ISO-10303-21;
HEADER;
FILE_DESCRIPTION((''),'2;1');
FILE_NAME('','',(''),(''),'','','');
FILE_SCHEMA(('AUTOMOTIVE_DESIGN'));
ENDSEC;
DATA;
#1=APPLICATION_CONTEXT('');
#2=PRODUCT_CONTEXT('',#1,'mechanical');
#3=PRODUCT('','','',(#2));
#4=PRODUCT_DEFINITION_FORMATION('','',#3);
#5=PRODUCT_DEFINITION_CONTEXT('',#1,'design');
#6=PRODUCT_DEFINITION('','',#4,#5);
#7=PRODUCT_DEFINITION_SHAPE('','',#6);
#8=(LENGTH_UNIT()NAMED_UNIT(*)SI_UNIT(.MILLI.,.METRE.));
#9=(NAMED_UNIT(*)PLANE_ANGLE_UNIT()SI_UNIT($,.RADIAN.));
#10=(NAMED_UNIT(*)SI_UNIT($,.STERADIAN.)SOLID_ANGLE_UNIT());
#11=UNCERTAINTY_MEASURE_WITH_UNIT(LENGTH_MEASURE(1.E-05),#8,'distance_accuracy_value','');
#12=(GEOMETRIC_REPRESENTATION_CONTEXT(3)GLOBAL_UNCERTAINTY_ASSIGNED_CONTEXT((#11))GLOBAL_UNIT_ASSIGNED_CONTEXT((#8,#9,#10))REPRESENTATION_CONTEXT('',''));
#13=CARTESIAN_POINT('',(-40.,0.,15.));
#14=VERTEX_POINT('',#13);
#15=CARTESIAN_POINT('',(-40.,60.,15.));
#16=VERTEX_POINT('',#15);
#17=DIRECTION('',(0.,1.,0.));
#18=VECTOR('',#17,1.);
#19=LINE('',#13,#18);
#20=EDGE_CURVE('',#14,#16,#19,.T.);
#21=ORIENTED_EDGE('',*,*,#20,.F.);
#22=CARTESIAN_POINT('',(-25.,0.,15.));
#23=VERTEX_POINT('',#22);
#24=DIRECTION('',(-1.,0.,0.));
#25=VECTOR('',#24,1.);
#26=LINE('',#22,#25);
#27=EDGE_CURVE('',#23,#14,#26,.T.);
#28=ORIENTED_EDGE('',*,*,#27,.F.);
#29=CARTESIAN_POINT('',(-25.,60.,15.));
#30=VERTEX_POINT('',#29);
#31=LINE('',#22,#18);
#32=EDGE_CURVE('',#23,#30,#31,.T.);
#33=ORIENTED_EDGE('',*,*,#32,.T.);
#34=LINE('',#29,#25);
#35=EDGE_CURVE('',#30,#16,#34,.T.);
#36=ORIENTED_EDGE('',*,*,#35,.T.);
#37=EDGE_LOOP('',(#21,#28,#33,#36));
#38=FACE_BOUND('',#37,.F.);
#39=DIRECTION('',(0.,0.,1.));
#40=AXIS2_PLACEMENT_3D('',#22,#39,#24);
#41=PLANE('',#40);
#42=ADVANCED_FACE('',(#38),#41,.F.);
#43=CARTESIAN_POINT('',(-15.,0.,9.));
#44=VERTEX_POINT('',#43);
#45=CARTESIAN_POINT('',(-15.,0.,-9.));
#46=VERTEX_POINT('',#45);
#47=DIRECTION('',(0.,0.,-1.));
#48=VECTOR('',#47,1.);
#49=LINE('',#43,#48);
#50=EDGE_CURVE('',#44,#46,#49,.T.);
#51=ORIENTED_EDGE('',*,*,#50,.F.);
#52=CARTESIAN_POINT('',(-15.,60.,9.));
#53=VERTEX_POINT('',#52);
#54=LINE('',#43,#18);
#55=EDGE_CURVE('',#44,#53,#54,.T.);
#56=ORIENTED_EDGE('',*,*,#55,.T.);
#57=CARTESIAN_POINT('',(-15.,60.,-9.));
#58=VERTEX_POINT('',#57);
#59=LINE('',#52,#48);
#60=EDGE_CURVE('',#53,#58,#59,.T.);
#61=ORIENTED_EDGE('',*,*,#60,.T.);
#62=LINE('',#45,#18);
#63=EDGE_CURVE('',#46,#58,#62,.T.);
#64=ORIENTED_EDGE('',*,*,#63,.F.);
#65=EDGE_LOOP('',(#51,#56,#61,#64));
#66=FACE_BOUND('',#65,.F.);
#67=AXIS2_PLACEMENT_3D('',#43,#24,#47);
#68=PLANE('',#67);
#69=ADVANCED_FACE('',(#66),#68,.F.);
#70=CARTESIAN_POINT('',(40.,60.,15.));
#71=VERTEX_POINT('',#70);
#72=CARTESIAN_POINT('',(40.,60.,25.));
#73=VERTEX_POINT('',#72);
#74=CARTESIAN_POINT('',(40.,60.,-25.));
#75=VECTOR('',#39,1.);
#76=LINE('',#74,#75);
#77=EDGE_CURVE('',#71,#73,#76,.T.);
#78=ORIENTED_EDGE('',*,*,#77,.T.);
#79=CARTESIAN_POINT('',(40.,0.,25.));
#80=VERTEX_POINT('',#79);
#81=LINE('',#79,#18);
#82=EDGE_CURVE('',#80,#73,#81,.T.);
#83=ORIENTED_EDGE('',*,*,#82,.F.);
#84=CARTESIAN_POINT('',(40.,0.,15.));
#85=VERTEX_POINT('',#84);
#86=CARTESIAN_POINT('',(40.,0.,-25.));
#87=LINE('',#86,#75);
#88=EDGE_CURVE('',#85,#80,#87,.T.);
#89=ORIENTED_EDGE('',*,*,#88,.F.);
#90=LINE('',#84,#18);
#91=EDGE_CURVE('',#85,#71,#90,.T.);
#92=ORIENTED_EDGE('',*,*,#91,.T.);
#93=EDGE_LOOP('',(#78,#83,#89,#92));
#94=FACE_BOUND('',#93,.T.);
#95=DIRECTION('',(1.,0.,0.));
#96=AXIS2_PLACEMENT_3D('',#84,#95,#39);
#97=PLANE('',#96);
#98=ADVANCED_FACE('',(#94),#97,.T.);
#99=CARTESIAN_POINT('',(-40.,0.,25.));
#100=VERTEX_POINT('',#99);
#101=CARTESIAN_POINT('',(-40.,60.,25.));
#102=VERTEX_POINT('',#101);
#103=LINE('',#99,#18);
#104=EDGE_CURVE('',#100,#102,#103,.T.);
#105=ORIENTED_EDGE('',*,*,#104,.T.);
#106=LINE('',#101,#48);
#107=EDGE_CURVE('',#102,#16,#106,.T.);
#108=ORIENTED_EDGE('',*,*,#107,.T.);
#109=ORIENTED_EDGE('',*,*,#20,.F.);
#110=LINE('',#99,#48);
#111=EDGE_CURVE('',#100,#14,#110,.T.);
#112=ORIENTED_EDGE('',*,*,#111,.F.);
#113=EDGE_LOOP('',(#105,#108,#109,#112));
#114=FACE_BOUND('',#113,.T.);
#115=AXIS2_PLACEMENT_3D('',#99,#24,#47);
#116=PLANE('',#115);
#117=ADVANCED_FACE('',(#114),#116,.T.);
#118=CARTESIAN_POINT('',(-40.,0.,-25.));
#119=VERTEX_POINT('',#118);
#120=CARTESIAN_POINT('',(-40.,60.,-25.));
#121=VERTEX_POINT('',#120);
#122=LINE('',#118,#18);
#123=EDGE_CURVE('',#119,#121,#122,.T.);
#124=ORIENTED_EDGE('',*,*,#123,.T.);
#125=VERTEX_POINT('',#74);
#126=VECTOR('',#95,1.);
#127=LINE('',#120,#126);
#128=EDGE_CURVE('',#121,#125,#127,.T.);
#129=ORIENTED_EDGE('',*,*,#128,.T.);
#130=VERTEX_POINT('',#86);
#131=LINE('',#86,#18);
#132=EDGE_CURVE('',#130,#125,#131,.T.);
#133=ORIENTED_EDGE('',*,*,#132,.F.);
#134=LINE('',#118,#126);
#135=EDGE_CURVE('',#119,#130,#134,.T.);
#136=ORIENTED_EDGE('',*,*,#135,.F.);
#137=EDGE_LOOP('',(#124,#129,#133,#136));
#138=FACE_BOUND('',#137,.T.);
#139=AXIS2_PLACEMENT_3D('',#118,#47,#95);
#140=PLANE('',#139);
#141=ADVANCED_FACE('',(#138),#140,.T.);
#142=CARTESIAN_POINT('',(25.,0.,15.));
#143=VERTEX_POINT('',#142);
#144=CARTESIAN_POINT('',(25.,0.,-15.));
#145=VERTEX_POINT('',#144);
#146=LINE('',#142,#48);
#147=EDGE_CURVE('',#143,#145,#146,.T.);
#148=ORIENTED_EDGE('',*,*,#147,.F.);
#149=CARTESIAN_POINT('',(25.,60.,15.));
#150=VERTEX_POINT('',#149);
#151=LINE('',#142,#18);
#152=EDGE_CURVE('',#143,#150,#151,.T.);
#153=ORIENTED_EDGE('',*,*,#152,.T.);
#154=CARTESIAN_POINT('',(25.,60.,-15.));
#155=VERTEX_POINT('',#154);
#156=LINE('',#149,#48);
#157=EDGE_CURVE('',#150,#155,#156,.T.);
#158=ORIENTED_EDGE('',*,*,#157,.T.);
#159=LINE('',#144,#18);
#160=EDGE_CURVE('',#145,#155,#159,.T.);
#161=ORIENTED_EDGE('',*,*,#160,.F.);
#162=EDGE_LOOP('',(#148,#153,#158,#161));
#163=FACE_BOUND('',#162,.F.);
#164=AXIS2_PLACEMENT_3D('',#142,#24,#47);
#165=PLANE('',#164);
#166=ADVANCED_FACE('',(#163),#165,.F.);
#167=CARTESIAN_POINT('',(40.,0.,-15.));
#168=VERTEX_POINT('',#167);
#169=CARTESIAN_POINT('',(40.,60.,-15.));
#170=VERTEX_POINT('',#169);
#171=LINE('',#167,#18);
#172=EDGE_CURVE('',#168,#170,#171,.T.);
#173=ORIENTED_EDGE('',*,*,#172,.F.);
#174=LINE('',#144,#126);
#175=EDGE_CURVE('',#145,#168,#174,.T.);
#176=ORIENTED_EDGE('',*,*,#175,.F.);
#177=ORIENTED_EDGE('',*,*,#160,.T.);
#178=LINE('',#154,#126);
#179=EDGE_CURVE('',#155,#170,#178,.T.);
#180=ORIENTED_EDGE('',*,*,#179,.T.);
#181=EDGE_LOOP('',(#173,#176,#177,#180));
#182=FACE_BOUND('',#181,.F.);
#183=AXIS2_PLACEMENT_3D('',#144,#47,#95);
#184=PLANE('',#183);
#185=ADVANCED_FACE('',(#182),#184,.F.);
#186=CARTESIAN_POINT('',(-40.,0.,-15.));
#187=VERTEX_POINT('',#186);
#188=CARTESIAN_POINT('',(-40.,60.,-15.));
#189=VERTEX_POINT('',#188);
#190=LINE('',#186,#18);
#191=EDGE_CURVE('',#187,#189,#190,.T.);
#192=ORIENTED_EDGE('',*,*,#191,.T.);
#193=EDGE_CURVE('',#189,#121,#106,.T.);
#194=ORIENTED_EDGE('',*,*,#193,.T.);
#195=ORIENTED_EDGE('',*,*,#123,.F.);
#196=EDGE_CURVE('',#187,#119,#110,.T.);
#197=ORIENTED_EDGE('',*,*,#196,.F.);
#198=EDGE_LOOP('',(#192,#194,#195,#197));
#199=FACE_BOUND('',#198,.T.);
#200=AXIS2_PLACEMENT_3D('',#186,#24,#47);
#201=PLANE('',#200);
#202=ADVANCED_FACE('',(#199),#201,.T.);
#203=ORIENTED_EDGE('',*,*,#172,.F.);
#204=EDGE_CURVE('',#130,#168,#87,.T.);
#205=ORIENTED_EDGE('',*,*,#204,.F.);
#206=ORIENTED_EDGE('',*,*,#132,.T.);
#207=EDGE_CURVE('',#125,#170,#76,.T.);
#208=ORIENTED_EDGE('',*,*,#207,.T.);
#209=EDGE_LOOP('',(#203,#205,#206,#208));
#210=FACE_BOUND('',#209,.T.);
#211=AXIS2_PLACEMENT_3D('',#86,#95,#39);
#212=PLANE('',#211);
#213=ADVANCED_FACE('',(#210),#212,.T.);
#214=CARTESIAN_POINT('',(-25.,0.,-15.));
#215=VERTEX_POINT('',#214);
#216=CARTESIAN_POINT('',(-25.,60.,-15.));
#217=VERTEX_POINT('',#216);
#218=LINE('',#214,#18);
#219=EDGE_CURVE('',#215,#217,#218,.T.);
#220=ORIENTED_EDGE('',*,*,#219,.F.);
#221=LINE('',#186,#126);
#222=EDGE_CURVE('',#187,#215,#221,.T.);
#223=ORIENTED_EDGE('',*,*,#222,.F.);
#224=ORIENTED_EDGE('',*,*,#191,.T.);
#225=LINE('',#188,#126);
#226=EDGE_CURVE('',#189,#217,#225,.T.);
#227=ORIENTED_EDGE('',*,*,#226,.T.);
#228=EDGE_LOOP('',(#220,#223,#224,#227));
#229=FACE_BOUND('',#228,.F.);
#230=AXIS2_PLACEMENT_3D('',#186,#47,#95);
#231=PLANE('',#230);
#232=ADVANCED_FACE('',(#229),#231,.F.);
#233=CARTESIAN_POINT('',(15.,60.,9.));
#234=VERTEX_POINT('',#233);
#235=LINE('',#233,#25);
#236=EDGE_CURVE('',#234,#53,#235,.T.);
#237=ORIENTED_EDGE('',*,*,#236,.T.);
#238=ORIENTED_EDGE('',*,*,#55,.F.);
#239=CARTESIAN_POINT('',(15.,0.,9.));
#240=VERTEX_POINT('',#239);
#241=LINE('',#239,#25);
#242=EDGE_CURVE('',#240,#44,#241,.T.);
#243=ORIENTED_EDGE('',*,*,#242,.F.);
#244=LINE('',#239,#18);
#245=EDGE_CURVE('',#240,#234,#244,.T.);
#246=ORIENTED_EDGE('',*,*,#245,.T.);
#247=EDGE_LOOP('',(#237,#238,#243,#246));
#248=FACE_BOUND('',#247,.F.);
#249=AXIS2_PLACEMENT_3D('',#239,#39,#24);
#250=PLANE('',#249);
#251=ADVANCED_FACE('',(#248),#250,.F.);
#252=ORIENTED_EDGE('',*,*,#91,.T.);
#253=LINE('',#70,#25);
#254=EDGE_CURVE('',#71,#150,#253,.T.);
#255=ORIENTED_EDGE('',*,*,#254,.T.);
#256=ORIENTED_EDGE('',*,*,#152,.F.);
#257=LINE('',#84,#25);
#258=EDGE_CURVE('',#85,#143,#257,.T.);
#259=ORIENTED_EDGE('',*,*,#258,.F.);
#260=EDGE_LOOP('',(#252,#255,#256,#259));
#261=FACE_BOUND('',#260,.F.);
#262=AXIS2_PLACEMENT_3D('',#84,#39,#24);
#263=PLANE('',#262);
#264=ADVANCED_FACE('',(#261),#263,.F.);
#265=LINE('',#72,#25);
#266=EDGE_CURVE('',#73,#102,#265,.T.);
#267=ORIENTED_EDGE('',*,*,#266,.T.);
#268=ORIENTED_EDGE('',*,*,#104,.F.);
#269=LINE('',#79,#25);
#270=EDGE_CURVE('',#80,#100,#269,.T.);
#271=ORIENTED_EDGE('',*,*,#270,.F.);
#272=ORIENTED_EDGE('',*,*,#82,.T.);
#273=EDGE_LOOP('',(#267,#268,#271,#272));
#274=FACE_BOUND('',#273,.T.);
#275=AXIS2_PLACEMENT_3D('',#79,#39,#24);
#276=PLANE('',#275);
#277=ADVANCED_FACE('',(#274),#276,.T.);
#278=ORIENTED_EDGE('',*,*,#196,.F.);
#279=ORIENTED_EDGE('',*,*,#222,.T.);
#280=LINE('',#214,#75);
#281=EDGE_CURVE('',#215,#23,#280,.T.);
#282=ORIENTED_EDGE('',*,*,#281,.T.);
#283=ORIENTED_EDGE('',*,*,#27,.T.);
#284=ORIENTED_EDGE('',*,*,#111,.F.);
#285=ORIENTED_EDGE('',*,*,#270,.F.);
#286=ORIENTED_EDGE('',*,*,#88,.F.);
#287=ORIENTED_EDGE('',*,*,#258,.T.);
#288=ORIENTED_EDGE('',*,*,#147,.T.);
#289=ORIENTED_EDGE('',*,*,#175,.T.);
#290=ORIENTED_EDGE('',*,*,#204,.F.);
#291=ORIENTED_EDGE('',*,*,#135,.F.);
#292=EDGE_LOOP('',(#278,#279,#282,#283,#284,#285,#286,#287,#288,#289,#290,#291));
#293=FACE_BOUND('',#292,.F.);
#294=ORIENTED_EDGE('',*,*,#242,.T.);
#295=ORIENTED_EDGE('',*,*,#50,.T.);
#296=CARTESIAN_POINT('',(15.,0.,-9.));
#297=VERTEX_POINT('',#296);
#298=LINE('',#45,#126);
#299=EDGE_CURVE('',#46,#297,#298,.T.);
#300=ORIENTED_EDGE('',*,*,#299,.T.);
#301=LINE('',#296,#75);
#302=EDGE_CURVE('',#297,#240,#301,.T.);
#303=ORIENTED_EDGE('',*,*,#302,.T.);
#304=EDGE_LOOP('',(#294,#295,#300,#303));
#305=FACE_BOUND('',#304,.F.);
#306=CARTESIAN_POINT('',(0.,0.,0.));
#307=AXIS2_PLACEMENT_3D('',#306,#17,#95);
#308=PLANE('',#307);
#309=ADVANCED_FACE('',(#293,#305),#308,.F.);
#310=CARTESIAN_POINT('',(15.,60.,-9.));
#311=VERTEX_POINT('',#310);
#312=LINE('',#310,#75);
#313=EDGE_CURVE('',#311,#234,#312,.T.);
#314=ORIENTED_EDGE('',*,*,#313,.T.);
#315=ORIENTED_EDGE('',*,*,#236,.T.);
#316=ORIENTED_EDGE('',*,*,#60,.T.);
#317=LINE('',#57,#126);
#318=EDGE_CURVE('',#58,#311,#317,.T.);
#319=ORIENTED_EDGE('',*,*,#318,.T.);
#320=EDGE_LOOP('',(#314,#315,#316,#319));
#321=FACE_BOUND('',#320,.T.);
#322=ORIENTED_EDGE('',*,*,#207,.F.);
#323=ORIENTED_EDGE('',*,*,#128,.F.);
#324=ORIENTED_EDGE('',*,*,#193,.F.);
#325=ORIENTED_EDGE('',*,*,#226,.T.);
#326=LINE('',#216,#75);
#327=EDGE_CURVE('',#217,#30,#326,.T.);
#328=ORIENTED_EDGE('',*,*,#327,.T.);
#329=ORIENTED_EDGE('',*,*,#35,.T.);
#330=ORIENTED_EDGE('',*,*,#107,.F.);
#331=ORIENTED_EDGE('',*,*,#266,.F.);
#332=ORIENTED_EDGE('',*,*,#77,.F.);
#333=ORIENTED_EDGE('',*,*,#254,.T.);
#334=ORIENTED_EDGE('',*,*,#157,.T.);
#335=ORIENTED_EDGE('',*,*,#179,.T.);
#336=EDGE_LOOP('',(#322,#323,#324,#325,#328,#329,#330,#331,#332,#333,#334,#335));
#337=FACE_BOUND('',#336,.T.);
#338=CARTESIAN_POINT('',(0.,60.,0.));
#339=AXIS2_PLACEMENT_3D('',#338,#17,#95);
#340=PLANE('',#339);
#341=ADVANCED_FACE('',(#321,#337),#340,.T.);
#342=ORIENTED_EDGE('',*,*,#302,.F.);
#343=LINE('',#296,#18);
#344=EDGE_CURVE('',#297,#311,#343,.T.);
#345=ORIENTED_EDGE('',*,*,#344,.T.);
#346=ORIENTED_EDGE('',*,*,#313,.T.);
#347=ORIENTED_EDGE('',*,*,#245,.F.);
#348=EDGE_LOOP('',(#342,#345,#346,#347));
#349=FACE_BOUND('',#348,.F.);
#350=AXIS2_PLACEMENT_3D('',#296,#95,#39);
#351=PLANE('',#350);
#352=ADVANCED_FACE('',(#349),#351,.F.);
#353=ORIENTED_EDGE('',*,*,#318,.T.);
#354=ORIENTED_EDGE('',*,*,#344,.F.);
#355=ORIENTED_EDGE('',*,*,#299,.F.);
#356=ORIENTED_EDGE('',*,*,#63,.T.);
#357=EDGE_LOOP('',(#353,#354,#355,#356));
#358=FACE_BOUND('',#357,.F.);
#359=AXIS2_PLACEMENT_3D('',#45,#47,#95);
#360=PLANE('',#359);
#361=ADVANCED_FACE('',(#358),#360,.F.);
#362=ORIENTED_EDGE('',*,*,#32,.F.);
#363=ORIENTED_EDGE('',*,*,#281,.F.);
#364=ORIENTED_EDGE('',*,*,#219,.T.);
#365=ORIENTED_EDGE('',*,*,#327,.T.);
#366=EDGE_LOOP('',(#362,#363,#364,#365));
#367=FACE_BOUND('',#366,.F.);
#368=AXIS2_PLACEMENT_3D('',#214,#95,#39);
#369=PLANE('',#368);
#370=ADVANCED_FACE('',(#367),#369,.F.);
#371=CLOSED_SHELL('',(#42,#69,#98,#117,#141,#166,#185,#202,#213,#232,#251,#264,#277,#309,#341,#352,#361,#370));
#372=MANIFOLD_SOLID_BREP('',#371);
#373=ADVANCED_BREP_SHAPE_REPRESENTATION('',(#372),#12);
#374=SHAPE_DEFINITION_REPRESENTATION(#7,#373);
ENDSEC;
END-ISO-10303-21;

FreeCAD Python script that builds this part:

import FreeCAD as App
import Part
import Sketcher


def add_polygon(sketch, points):
    """Adds a closed chain of lines whose ends are joined by coincident constraints."""
    first, n = sketch.GeometryCount, len(points)
    for a, b in zip(points, points[1:] + points[:1]):
        sketch.addGeometry(Part.LineSegment(App.Vector(*a, 0), App.Vector(*b, 0)), False)
    for i in range(n):
        sketch.addConstraint(Sketcher.Constraint("Coincident", first + i, 2, first + (i + 1) % n, 1))

doc = App.newDocument("Part")
body = doc.addObject("PartDesign::Body", "Body")

# Sketch on XZ plane
sketch1 = body.newObject("Sketcher::SketchObject", "Sketch")
sketch1.AttachmentSupport = (doc.getObject("XZ_Plane"), [""])
sketch1.MapMode = "FlatFace"
add_polygon(sketch1, [(-40, 25), (40, 25), (40, 15), (25, 15), (25, -15), (40, -15), (40, -25), (-40, -25), (-40, -15), (-25, -15), (-25, 15), (-40, 15)])  # lines 0-11
add_polygon(sketch1, [(15, -9), (15, 9), (-15, 9), (-15, -9)])  # lines 12-15
sketch1.addConstraint([
    Sketcher.Constraint("Horizontal", 0),
    Sketcher.Constraint("Vertical", 1),
    Sketcher.Constraint("Horizontal", 2),
    Sketcher.Constraint("Vertical", 3),
    Sketcher.Constraint("Horizontal", 4),
    Sketcher.Constraint("Vertical", 5),
    Sketcher.Constraint("Horizontal", 6),
    Sketcher.Constraint("Vertical", 7),
    Sketcher.Constraint("Horizontal", 8),
    Sketcher.Constraint("Vertical", 9),
    Sketcher.Constraint("Horizontal", 10),
    Sketcher.Constraint("Vertical", 11),
    Sketcher.Constraint("Vertical", 12),
    Sketcher.Constraint("Horizontal", 13),
    Sketcher.Constraint("Vertical", 14),
    Sketcher.Constraint("Horizontal", 15),
    Sketcher.Constraint("Symmetric", 0, 2, 6, 2, -1, 1),
    Sketcher.Constraint("Symmetric", 2, 2, 8, 2, -1, 1),
    Sketcher.Constraint("Symmetric", 4, 2, 10, 2, -1, 1),
    Sketcher.Constraint("Symmetric", 12, 2, 14, 2, -1, 1),
    Sketcher.Constraint("Symmetric", 4, 2, 7, 2, -2),
    Sketcher.Constraint("Equal", 15, 3),
    Sketcher.Constraint("DistanceX", 0, 1, 0, 2, 80.0),
    Sketcher.Constraint("DistanceX", 2, 2, 2, 1, 15.0),
    Sketcher.Constraint("DistanceX", 13, 2, 13, 1, 30.0),
    Sketcher.Constraint("DistanceY", 1, 2, 1, 1, 10.0),
    Sketcher.Constraint("DistanceY", 12, 1, 12, 2, 18.0),
])
pad1 = body.newObject("PartDesign::Pad", "Pad")
pad1.Profile = sketch1
pad1.Length = 60
pad1.Reversed = True

doc.recompute()
